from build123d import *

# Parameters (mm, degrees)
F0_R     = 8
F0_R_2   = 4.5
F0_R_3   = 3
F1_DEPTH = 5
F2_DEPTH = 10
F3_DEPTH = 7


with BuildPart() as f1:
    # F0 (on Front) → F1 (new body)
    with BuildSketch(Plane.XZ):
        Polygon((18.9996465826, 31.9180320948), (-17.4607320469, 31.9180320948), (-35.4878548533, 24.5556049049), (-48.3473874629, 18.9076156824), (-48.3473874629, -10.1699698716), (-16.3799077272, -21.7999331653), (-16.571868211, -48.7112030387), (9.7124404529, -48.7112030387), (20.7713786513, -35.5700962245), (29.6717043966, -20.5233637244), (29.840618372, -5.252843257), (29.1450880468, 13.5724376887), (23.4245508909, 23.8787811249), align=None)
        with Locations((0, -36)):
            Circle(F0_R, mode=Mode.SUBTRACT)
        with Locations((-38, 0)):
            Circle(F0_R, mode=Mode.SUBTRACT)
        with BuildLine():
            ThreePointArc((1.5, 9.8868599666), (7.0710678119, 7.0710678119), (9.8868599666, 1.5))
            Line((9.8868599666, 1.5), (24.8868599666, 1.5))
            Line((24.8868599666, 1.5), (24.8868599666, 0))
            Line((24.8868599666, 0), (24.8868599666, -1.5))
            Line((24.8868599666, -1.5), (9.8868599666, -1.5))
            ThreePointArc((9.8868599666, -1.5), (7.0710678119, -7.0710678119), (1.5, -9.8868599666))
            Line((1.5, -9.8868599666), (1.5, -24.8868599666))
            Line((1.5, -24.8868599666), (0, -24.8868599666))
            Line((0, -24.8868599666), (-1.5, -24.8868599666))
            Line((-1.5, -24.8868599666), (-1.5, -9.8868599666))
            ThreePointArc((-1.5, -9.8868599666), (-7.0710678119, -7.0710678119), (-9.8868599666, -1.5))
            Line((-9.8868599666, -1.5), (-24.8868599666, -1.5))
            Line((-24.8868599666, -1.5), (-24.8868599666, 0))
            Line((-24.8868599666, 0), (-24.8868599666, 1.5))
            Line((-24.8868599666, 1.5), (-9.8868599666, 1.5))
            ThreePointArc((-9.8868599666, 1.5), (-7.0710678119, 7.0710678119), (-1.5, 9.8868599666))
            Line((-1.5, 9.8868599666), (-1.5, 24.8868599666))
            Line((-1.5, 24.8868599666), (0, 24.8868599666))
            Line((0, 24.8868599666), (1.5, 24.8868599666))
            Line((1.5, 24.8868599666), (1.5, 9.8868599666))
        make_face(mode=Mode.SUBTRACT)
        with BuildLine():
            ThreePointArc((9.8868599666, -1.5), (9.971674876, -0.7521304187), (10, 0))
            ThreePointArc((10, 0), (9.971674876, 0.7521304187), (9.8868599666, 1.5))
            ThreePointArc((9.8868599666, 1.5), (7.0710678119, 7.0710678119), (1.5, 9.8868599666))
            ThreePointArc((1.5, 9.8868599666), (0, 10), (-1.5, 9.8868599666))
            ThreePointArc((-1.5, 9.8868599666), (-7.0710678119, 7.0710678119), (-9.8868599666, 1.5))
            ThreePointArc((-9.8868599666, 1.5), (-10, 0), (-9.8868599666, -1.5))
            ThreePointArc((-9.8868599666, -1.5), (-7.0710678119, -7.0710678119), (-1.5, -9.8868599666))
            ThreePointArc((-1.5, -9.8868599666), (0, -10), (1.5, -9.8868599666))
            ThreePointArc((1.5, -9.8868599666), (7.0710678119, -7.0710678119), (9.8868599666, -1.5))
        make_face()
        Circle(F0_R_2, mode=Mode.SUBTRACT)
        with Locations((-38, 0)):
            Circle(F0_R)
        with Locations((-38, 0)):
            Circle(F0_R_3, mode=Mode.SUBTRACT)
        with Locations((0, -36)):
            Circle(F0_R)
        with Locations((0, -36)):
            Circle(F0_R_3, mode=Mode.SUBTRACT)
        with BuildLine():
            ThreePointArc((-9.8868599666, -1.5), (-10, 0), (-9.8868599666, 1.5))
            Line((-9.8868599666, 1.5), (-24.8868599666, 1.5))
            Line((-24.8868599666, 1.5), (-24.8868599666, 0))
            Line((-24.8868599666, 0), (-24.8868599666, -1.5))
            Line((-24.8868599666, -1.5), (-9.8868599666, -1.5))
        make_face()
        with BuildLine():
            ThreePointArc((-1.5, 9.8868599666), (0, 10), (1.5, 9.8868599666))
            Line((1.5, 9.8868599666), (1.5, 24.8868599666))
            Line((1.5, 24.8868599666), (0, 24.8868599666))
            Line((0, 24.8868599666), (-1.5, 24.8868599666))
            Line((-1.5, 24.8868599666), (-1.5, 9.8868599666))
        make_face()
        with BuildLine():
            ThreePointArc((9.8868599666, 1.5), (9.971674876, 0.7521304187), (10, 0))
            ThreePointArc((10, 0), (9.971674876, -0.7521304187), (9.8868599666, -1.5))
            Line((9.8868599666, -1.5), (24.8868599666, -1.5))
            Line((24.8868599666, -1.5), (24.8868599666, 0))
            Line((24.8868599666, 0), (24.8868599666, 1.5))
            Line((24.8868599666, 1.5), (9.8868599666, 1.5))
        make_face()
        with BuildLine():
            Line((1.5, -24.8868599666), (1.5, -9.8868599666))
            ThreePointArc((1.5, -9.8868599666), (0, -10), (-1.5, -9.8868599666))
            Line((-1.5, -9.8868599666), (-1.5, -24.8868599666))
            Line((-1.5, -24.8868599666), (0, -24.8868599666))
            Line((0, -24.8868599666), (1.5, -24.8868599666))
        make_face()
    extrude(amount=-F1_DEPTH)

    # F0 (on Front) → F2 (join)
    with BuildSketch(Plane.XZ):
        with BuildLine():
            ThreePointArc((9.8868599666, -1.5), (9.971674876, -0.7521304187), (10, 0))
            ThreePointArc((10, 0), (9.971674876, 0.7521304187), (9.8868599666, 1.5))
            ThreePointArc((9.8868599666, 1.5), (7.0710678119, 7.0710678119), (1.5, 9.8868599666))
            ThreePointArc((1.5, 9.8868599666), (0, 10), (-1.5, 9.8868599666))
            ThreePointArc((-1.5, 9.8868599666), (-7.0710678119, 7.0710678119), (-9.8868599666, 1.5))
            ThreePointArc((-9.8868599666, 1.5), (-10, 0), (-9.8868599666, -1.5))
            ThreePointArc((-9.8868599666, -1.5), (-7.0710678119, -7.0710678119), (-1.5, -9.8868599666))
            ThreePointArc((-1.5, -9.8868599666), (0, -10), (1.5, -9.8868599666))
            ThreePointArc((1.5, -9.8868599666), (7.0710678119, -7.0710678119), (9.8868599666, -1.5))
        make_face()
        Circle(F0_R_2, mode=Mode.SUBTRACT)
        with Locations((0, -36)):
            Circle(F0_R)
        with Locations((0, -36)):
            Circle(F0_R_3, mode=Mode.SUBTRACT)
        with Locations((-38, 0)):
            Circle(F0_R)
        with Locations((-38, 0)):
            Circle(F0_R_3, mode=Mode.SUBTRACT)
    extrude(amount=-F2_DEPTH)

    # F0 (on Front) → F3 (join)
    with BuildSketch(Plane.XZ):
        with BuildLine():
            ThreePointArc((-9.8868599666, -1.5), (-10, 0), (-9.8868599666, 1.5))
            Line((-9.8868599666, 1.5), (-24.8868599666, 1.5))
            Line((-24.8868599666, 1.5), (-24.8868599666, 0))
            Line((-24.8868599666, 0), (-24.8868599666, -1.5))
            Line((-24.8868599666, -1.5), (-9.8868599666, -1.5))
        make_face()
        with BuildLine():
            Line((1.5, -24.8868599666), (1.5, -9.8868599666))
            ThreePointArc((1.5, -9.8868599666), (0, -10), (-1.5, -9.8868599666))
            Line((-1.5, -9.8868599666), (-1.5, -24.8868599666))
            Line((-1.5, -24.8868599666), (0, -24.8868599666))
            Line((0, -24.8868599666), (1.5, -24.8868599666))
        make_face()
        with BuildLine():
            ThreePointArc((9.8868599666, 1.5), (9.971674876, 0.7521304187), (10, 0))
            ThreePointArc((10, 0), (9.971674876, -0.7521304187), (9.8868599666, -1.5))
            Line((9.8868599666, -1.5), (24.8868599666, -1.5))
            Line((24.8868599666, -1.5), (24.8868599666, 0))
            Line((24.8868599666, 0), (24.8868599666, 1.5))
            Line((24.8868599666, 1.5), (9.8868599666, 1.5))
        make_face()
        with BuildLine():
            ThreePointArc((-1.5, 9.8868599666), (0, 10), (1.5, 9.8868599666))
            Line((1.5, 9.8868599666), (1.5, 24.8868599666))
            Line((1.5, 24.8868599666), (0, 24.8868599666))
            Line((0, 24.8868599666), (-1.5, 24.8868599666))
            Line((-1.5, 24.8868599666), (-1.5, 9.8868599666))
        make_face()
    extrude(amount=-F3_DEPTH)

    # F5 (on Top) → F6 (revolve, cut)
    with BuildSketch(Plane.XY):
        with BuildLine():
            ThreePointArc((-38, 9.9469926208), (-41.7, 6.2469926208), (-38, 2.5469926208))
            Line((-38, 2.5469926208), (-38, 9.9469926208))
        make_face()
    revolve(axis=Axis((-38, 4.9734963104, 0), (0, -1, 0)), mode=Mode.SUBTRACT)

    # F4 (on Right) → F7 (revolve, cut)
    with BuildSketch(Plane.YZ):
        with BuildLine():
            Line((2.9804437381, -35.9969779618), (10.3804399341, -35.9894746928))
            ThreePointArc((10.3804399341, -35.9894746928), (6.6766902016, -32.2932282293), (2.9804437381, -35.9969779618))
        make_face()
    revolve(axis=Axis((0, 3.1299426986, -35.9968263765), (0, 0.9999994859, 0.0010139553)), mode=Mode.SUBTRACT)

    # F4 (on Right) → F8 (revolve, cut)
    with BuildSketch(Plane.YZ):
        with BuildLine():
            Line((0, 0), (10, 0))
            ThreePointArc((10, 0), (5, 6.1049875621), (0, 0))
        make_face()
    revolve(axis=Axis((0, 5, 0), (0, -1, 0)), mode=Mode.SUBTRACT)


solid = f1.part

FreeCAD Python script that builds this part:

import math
import FreeCAD as App
import Part
import Sketcher
from FreeCAD import Vector
Q = App.Units.Quantity

doc = App.newDocument("Part")
body = doc.addObject("PartDesign::Body", "Body")

# Sketch on XZ plane
sketch1 = body.newObject("Sketcher::SketchObject", "Sketch")
sketch1.AttachmentSupport = (doc.getObject("XZ_Plane"), [""])
sketch1.MapMode = "FlatFace"
sketch1.addGeometry([
    Part.LineSegment(Vector(18.999647, 31.918032, 0), Vector(-17.460732, 31.918032, 0)),  # 0
    Part.LineSegment(Vector(-17.460732, 31.918032, 0), Vector(-35.487855, 24.555605, 0)),  # 1
    Part.LineSegment(Vector(-35.487855, 24.555605, 0), Vector(-48.347387, 18.907616, 0)),  # 2
    Part.LineSegment(Vector(-48.347387, 18.907616, 0), Vector(-48.347387, -10.16997, 0)),  # 3
    Part.LineSegment(Vector(-48.347387, -10.16997, 0), Vector(-16.379908, -21.799933, 0)),  # 4
    Part.LineSegment(Vector(-16.379908, -21.799933, 0), Vector(-16.571868, -48.711203, 0)),  # 5
    Part.LineSegment(Vector(-16.571868, -48.711203, 0), Vector(9.71244, -48.711203, 0)),  # 6
    Part.LineSegment(Vector(9.71244, -48.711203, 0), Vector(20.771379, -35.570096, 0)),  # 7
    Part.LineSegment(Vector(20.771379, -35.570096, 0), Vector(29.671704, -20.523364, 0)),  # 8
    Part.LineSegment(Vector(29.671704, -20.523364, 0), Vector(29.840618, -5.252843, 0)),  # 9
    Part.LineSegment(Vector(29.840618, -5.252843, 0), Vector(29.145088, 13.572438, 0)),  # 10
    Part.LineSegment(Vector(29.145088, 13.572438, 0), Vector(23.424551, 23.878781, 0)),  # 11
    Part.LineSegment(Vector(23.424551, 23.878781, 0), Vector(18.999647, 31.918032, 0)),  # 12
    Part.Circle(Vector(0, -36, 0), Vector(0, 0, 1), 3),  # 13
    Part.Circle(Vector(-38, 0, 0), Vector(0, 0, 1), 3),  # 14
    Part.Circle(Vector(0, 0, 0), Vector(0, 0, 1), 4.5),  # 15
], False)
sketch1.addConstraint([
    Sketcher.Constraint("Coincident", 0, 2, 1, 1),
    Sketcher.Constraint("Coincident", 1, 2, 2, 1),
    Sketcher.Constraint("Coincident", 2, 2, 3, 1),
    Sketcher.Constraint("Coincident", 3, 2, 4, 1),
    Sketcher.Constraint("Coincident", 4, 2, 5, 1),
    Sketcher.Constraint("Coincident", 5, 2, 6, 1),
    Sketcher.Constraint("Coincident", 6, 2, 7, 1),
    Sketcher.Constraint("Coincident", 7, 2, 8, 1),
    Sketcher.Constraint("Coincident", 8, 2, 9, 1),
    Sketcher.Constraint("Coincident", 9, 2, 10, 1),
    Sketcher.Constraint("Coincident", 10, 2, 11, 1),
    Sketcher.Constraint("Coincident", 11, 2, 12, 1),
    Sketcher.Constraint("Coincident", 12, 2, 0, 1),
    Sketcher.Constraint("Horizontal", 0),
    Sketcher.Constraint("Vertical", 3),
    Sketcher.Constraint("Horizontal", 6),
    Sketcher.Constraint("Coincident", 15, 3, -1, 1),
    Sketcher.Constraint("Equal", 13, 14),
    Sketcher.Constraint("PointOnObject", 13, 3, -2),
    Sketcher.Constraint("PointOnObject", 14, 3, -1),
    Sketcher.Constraint("Diameter", 13, Q("6 mm")),
    Sketcher.Constraint("Diameter", 15, Q("9 mm")),
    Sketcher.Constraint("DistanceY", 13, 3, -1, 1, Q("36 mm")),
    Sketcher.Constraint("DistanceX", 14, 3, -1, 1, Q("38 mm")),
    Sketcher.Constraint("DistanceY", 3, 2, 0, 2, Q("42.088002 mm")),
    Sketcher.Constraint("DistanceX", 0, 2, 0, 1, Q("36.460379 mm")),
    Sketcher.Constraint("DistanceX", 6, 1, 6, 2, Q("26.284309 mm")),
    Sketcher.Constraint("DistanceY", 8, 2, 10, 2, Q("34.095801 mm")),
    Sketcher.Constraint("Distance", 1, Q("19.472609 mm")),
    Sketcher.Constraint("Distance", 2, Q("14.04519 mm")),
    Sketcher.Constraint("Distance", 7, Q("17.175238 mm")),
    Sketcher.Constraint("Distance", 8, Q("17.48199 mm")),
    Sketcher.Constraint("DistanceY", 3, 2, 3, 1, Q("29.077586 mm")),
    Sketcher.Constraint("DistanceY", 3, 2, -1, 1, Q("10.16997 mm")),
    Sketcher.Constraint("DistanceX", 5, 2, -1, 1, Q("16.571868 mm")),
    Sketcher.Constraint("DistanceX", -1, 1, 7, 2, Q("20.771379 mm")),
    Sketcher.Constraint("DistanceX", -1, 1, 9, 2, Q("29.840618 mm")),
    Sketcher.Constraint("DistanceX", -1, 1, 10, 2, Q("29.145088 mm")),
    Sketcher.Constraint("DistanceX", -1, 1, 11, 2, Q("23.424551 mm")),
    Sketcher.Constraint("DistanceY", -1, 1, 11, 2, Q("23.878781 mm")),
    Sketcher.Constraint("DistanceY", 2, 2, 1, 2, Q("5.647989 mm")),
    Sketcher.Constraint("DistanceX", 3, 2, 4, 2, Q("31.96748 mm")),
    Sketcher.Constraint("DistanceY", 4, 2, 1, 2, Q("46.355538 mm")),
    Sketcher.Constraint("DistanceX", 5, 2, 4, 2, Q("0.19196 mm")),
    Sketcher.Constraint("DistanceY", 5, 2, 4, 2, Q("26.91127 mm")),
    Sketcher.Constraint("DistanceY", 6, 2, 8, 2, Q("28.187839 mm")),
    Sketcher.Constraint("DistanceY", 8, 2, 9, 2, Q("15.27052 mm")),
])
pad1 = body.newObject("PartDesign::Pad", "Pad")
pad1.Profile = sketch1
pad1.Length = 5
pad1.Reversed = True

# Sketch on XZ plane
sketch2 = body.newObject("Sketcher::SketchObject", "Sketch001")
sketch2.AttachmentSupport = (doc.getObject("XZ_Plane"), [""])
sketch2.MapMode = "FlatFace"
sketch2.addGeometry([
    Part.ArcOfCircle(Part.Circle(Vector(0, 0, 0), Vector(0, 0, 1), 10), math.radians(-8.626927), math.radians(0)),  # 0
    Part.ArcOfCircle(Part.Circle(Vector(0, 0, 0), Vector(0, 0, 1), 10), math.radians(0), math.radians(8.626927)),  # 1
    Part.ArcOfCircle(Part.Circle(Vector(0, 0, 0), Vector(0, 0, 1), 10), math.radians(8.626927), math.radians(81.373073)),  # 2
    Part.ArcOfCircle(Part.Circle(Vector(0, 0, 0), Vector(0, 0, 1), 10), math.radians(81.373073), math.radians(98.626927)),  # 3
    Part.ArcOfCircle(Part.Circle(Vector(0, 0, 0), Vector(0, 0, 1), 10), math.radians(98.626927), math.radians(171.373073)),  # 4
    Part.ArcOfCircle(Part.Circle(Vector(0, 0, 0), Vector(0, 0, 1), 10), math.radians(171.373073), math.radians(188.626927)),  # 5
    Part.ArcOfCircle(Part.Circle(Vector(0, 0, 0), Vector(0, 0, 1), 10), math.radians(-171.373073), math.radians(-98.626927)),  # 6
    Part.ArcOfCircle(Part.Circle(Vector(0, 0, 0), Vector(0, 0, 1), 10), math.radians(-98.626927), math.radians(-81.373073)),  # 7
    Part.ArcOfCircle(Part.Circle(Vector(0, 0, 0), Vector(0, 0, 1), 10), math.radians(-81.373073), math.radians(-8.626927)),  # 8
    Part.Circle(Vector(0, 0, 0), Vector(0, 0, 1), 4.5),  # 9
    Part.Circle(Vector(0, -36, 0), Vector(0, 0, 1), 8),  # 10
    Part.Circle(Vector(0, -36, 0), Vector(0, 0, 1), 3),  # 11
    Part.Circle(Vector(-38, 0, 0), Vector(0, 0, 1), 8),  # 12
    Part.Circle(Vector(-38, 0, 0), Vector(0, 0, 1), 3),  # 13
], False)
sketch2.addConstraint([
    Sketcher.Constraint("Tangent", 0, 2, 1, 1),
    Sketcher.Constraint("Tangent", 1, 2, 2, 1),
    Sketcher.Constraint("Tangent", 2, 2, 3, 1),
    Sketcher.Constraint("Tangent", 3, 2, 4, 1),
    Sketcher.Constraint("Tangent", 4, 2, 5, 1),
    Sketcher.Constraint("Tangent", 5, 2, 6, 1),
    Sketcher.Constraint("Tangent", 6, 2, 7, 1),
    Sketcher.Constraint("Tangent", 7, 2, 8, 1),
    Sketcher.Constraint("Tangent", 8, 2, 0, 1),
    Sketcher.Constraint("Coincident", 0, 3, -1, 1),
    Sketcher.Constraint("Coincident", 2, 3, -1, 1),
    Sketcher.Constraint("Coincident", 4, 3, -1, 1),
    Sketcher.Constraint("Coincident", 6, 3, -1, 1),
    Sketcher.Constraint("Coincident", 9, 3, -1, 1),
    Sketcher.Constraint("Coincident", 11, 3, 10, 3),
    Sketcher.Constraint("Coincident", 13, 3, 12, 3),
    Sketcher.Constraint("Equal", 10, 12),
    Sketcher.Constraint("Equal", 11, 13),
    Sketcher.Constraint("PointOnObject", 10, 3, -2),
    Sketcher.Constraint("PointOnObject", 12, 3, -1),
    Sketcher.Constraint("PointOnObject", 0, 2, -1),
    Sketcher.Constraint("Horizontal", 2, 2, 3, 2),
    Sketcher.Constraint("Horizontal", 1, 2, 4, 2),
    Sketcher.Constraint("Horizontal", 6, 2, 7, 2),
    Sketcher.Constraint("Horizontal", 5, 2, 8, 2),
    Sketcher.Constraint("Vertical", 4, 2, 5, 2),
    Sketcher.Constraint("Vertical", 3, 2, 6, 2),
    Sketcher.Constraint("Diameter", 9, Q("9 mm")),
    Sketcher.Constraint("Diameter", 10, Q("16 mm")),
    Sketcher.Constraint("Diameter", 11, Q("6 mm")),
    Sketcher.Constraint("Radius", 0, Q("10 mm")),
    Sketcher.Constraint("DistanceY", 10, 3, -1, 1, Q("36 mm")),
    Sketcher.Constraint("DistanceX", 12, 3, -1, 1, Q("38 mm")),
    Sketcher.Constraint("DistanceX", 3, 2, 2, 2, Q("3 mm")),
    Sketcher.Constraint("DistanceY", 5, 2, 4, 2, Q("3 mm")),
])
pad2 = body.newObject("PartDesign::Pad", "Pad001")
pad2.Profile = sketch2
pad2.Length = 10
pad2.Reversed = True

# Sketch on XZ plane
sketch3 = body.newObject("Sketcher::SketchObject", "Sketch002")
sketch3.AttachmentSupport = (doc.getObject("XZ_Plane"), [""])
sketch3.MapMode = "FlatFace"
sketch3.addGeometry([
    Part.ArcOfCircle(Part.Circle(Vector(0, 0, 0), Vector(0, 0, 1), 10), math.radians(171.373073), math.radians(188.626927)),  # 0
    Part.LineSegment(Vector(-9.88686, 1.5, 0), Vector(-24.88686, 1.5, 0)),  # 1
    Part.LineSegment(Vector(-24.88686, 1.5, 0), Vector(-24.88686, -1.5, 0)),  # 2
    Part.LineSegment(Vector(-24.88686, -1.5, 0), Vector(-9.88686, -1.5, 0)),  # 3
    Part.LineSegment(Vector(1.5, -24.88686, 0), Vector(1.5, -9.88686, 0)),  # 4
    Part.ArcOfCircle(Part.Circle(Vector(0, 0, 0), Vector(0, 0, 1), 10), math.radians(-98.626927), math.radians(-81.373073)),  # 5
    Part.LineSegment(Vector(-1.5, -9.88686, 0), Vector(-1.5, -24.88686, 0)),  # 6
    Part.LineSegment(Vector(-1.5, -24.88686, 0), Vector(1.5, -24.88686, 0)),  # 7
    Part.ArcOfCircle(Part.Circle(Vector(0, 0, 0), Vector(0, 0, 1), 10), math.radians(0), math.radians(8.626927)),  # 8
    Part.ArcOfCircle(Part.Circle(Vector(0, 0, 0), Vector(0, 0, 1), 10), math.radians(-8.626927), math.radians(0)),  # 9
    Part.LineSegment(Vector(9.88686, -1.5, 0), Vector(24.88686, -1.5, 0)),  # 10
    Part.LineSegment(Vector(24.88686, -1.5, 0), Vector(24.88686, 1.5, 0)),  # 11
    Part.LineSegment(Vector(24.88686, 1.5, 0), Vector(9.88686, 1.5, 0)),  # 12
    Part.ArcOfCircle(Part.Circle(Vector(0, 0, 0), Vector(0, 0, 1), 10), math.radians(81.373073), math.radians(98.626927)),  # 13
    Part.LineSegment(Vector(1.5, 9.88686, 0), Vector(1.5, 24.88686, 0)),  # 14
    Part.LineSegment(Vector(1.5, 24.88686, 0), Vector(-1.5, 24.88686, 0)),  # 15
    Part.LineSegment(Vector(-1.5, 24.88686, 0), Vector(-1.5, 9.88686, 0)),  # 16
], False)
sketch3.addConstraint([
    Sketcher.Constraint("Coincident", 0, 1, 1, 1),
    Sketcher.Constraint("Coincident", 1, 2, 2, 1),
    Sketcher.Constraint("Coincident", 2, 2, 3, 1),
    Sketcher.Constraint("Coincident", 3, 2, 0, 2),
    Sketcher.Constraint("Coincident", 4, 2, 5, 2),
    Sketcher.Constraint("Coincident", 5, 1, 6, 1),
    Sketcher.Constraint("Coincident", 6, 2, 7, 1),
    Sketcher.Constraint("Coincident", 7, 2, 4, 1),
    Sketcher.Constraint("Tangent", 8, 1, 9, 2),
    Sketcher.Constraint("Coincident", 9, 1, 10, 1),
    Sketcher.Constraint("Coincident", 10, 2, 11, 1),
    Sketcher.Constraint("Coincident", 11, 2, 12, 1),
    Sketcher.Constraint("Coincident", 12, 2, 8, 2),
    Sketcher.Constraint("Coincident", 13, 1, 14, 1),
    Sketcher.Constraint("Coincident", 14, 2, 15, 1),
    Sketcher.Constraint("Coincident", 15, 2, 16, 1),
    Sketcher.Constraint("Coincident", 16, 2, 13, 2),
    Sketcher.Constraint("Horizontal", 1),
    Sketcher.Constraint("Vertical", 2),
    Sketcher.Constraint("Horizontal", 3),
    Sketcher.Constraint("Vertical", 4),
    Sketcher.Constraint("Vertical", 6),
    Sketcher.Constraint("Horizontal", 7),
    Sketcher.Constraint("Horizontal", 10),
    Sketcher.Constraint("Vertical", 11),
    Sketcher.Constraint("Horizontal", 12),
    Sketcher.Constraint("Vertical", 14),
    Sketcher.Constraint("Horizontal", 15),
    Sketcher.Constraint("Vertical", 16),
    Sketcher.Constraint("Coincident", 0, 3, -1, 1),
    Sketcher.Constraint("Coincident", 5, 3, -1, 1),
    Sketcher.Constraint("Coincident", 8, 3, -1, 1),
    Sketcher.Constraint("Coincident", 13, 3, -1, 1),
    Sketcher.Constraint("Equal", 0, 5),
    Sketcher.Constraint("Equal", 5, 8),
    Sketcher.Constraint("Equal", 8, 9),
    Sketcher.Constraint("Equal", 9, 13),
    Sketcher.Constraint("Symmetric", 1, 2, 10, 2, -1, 1),
    Sketcher.Constraint("Symmetric", 6, 2, 14, 2, -1, 1),
    Sketcher.Constraint("PointOnObject", 8, 1, -1),
    Sketcher.Constraint("Horizontal", 4, 2, 5, 1),
    Sketcher.Constraint("Horizontal", 3, 2, 9, 1),
    Sketcher.Constraint("Horizontal", 1, 2, 11, 2),
    Sketcher.Constraint("Horizontal", 13, 1, 16, 2),
    Sketcher.Constraint("Equal", 15, 2),
    Sketcher.Constraint("Equal", 12, 4),
    Sketcher.Constraint("Radius", 0, Q("10 mm")),
    Sketcher.Constraint("DistanceX", 1, 2, 1, 1, Q("15 mm")),
    Sketcher.Constraint("DistanceX", 7, 1, 7, 2, Q("3 mm")),
])
pad3 = body.newObject("PartDesign::Pad", "Pad002")
pad3.Profile = sketch3
pad3.Length = 7
pad3.Reversed = True

# Sketch on XY plane
sketch4 = body.newObject("Sketcher::SketchObject", "Sketch003")
sketch4.AttachmentSupport = (doc.getObject("XY_Plane"), [""])
sketch4.MapMode = "FlatFace"
sketch4.addGeometry([
    Part.ArcOfCircle(Part.Circle(Vector(-38, 6.246993, 0), Vector(0, 0, 1), 3.7), math.radians(90), math.radians(270)),
    Part.LineSegment(Vector(-38, 2.546993, 0), Vector(-38, 9.946993, 0)),
], False)
sketch4.addGeometry(Part.LineSegment(Vector(-38, 9.946993, 0), Vector(-38, 2.546993, 0)), True)  # axis
sketch4.addConstraint([
    Sketcher.Constraint("Coincident", 0, 1, 1, 2),
    Sketcher.Constraint("Coincident", 1, 1, 0, 2),
    Sketcher.Constraint("Vertical", 1),
    Sketcher.Constraint("Vertical", 2),
    Sketcher.Constraint("Coincident", 2, 1, 0, 1),
    Sketcher.Constraint("Equal", 1, 2),
    Sketcher.Constraint("Radius", 0, Q("3.7 mm")),
    Sketcher.Constraint("DistanceX", 0, 3, -1, 1, Q("38 mm")),
    Sketcher.Constraint("DistanceX", 0, 1, -1, 1, Q("38 mm")),
    Sketcher.Constraint("DistanceY", -1, 1, 0, 3, Q("6.246993 mm")),
])
groove = body.newObject("PartDesign::Groove", "Groove")
groove.Profile = sketch4
groove.ReferenceAxis = (sketch4, ["Axis0"])
groove.Angle = 360

# Sketch on YZ plane
sketch5 = body.newObject("Sketcher::SketchObject", "Sketch004")
sketch5.AttachmentSupport = (doc.getObject("YZ_Plane"), [""])
sketch5.MapMode = "FlatFace"
sketch5.addGeometry([
    Part.LineSegment(Vector(2.980444, -35.996978, 0), Vector(10.38044, -35.989475, 0)),
    Part.ArcOfCircle(Part.Circle(Vector(6.680442, -35.993226, 0), Vector(0, 0, 1), 3.7), math.radians(0.058095), math.radians(180.058095)),
], False)
sketch5.addGeometry(Part.LineSegment(Vector(2.980444, -35.996978, 0), Vector(10.38044, -35.989475, 0)), True)  # axis
sketch5.addConstraint([
    Sketcher.Constraint("Coincident", 0, 1, 1, 2),
    Sketcher.Constraint("Coincident", 1, 1, 0, 2),
    Sketcher.Constraint("Coincident", 2, 1, 0, 1),
    Sketcher.Constraint("Coincident", 2, 2, 1, 1),
    Sketcher.Constraint("Radius", 1, Q("3.7 mm")),
    Sketcher.Constraint("DistanceX", -1, 1, 1, 3, Q("6.680442 mm")),
    Sketcher.Constraint("DistanceY", 0, 1, 1, 3, Q("0.003752 mm")),
    Sketcher.Constraint("DistanceY", 1, 3, 1, 1, Q("0.003752 mm")),
    Sketcher.Constraint("DistanceY", 1, 3, -1, 1, Q("35.993226 mm")),
])
groove2 = body.newObject("PartDesign::Groove", "Groove001")
groove2.Profile = sketch5
groove2.ReferenceAxis = (sketch5, ["Axis0"])
groove2.Angle = 360

# Sketch on YZ plane
sketch6 = body.newObject("Sketcher::SketchObject", "Sketch005")
sketch6.AttachmentSupport = (doc.getObject("YZ_Plane"), [""])
sketch6.MapMode = "FlatFace"
sketch6.addGeometry([
    Part.LineSegment(Vector(0, 0, 0), Vector(10, 0, 0)),
    Part.ArcOfCircle(Part.Circle(Vector(5, 1.004988, 0), Vector(0, 0, 1), 5.1), math.radians(-11.364877), math.radians(191.364877)),
], False)
sketch6.addConstraint([
    Sketcher.Constraint("Coincident", 0, 1, 1, 2),
    Sketcher.Constraint("Coincident", 1, 1, 0, 2),
    Sketcher.Constraint("Horizontal", 0),
    Sketcher.Constraint("Coincident", 0, 1, -1, 1),
    Sketcher.Constraint("Radius", 1, Q("5.1 mm")),
    Sketcher.Constraint("DistanceX", 0, 1, 0, 2, Q("10 mm")),
])
groove3 = body.newObject("PartDesign::Groove", "Groove002")
groove3.Profile = sketch6
groove3.ReferenceAxis = (sketch6, ["H_Axis"])
groove3.Angle = 360

doc.recompute()
